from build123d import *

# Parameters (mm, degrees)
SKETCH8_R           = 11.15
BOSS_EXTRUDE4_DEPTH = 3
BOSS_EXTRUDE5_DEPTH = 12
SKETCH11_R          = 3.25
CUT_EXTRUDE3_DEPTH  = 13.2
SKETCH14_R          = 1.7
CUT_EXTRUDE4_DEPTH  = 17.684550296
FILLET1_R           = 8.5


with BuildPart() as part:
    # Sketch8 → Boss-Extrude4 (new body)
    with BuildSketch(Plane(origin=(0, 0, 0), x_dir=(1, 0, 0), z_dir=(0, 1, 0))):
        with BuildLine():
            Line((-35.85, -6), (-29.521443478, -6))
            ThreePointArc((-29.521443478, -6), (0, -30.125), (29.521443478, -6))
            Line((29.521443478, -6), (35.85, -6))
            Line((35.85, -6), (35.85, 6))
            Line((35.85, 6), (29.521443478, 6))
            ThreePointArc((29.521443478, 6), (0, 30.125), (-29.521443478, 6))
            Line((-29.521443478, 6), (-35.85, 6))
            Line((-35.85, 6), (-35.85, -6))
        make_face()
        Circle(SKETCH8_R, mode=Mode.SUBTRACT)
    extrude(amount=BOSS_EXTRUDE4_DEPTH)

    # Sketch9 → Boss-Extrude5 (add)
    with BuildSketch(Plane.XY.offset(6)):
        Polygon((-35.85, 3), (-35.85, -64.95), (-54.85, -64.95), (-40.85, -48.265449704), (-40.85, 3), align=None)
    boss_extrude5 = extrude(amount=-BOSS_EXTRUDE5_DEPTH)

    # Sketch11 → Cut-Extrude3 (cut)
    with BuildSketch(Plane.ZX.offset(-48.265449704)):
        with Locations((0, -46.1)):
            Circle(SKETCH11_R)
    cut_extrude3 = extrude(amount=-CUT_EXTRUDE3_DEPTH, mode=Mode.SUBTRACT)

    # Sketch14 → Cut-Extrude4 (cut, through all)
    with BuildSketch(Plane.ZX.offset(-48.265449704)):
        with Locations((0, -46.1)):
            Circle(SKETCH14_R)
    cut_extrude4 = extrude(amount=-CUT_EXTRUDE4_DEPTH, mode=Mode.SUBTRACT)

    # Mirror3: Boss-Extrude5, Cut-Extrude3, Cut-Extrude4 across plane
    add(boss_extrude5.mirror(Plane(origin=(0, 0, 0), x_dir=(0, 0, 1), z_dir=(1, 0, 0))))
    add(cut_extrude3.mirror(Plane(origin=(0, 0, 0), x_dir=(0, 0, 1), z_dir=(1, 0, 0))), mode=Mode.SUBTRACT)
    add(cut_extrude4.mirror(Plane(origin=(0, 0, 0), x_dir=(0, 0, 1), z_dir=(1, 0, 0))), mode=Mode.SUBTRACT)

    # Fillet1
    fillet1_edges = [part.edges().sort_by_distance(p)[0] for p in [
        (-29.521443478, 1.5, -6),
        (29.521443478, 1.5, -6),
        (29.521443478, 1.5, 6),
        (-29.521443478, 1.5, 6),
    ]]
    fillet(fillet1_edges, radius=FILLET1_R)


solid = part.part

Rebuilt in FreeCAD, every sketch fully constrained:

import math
import FreeCAD as App
import Part
import Sketcher

V = App.Vector
Q = App.Units.Quantity


def edges_at(feature, points):
    """Names of the edges that pass closest to the given points."""
    edges = feature.Shape.Edges
    near = lambda p: min(range(len(edges)), key=lambda i: edges[i].distToShape(Part.Vertex(*p))[0])
    return sorted({f"Edge{near(p) + 1}" for p in points})


def add_polygon(sketch, points):
    """Adds a closed chain of lines whose ends are joined by coincident constraints."""
    first, n = sketch.GeometryCount, len(points)
    for a, b in zip(points, points[1:] + points[:1]):
        sketch.addGeometry(Part.LineSegment(App.Vector(*a, 0), App.Vector(*b, 0)), False)
    for i in range(n):
        sketch.addConstraint(Sketcher.Constraint("Coincident", first + i, 2, first + (i + 1) % n, 1))

doc = App.newDocument("Part")
params = doc.addObject("Spreadsheet::Sheet", "Params")
for row, (alias, value) in enumerate([
    ("sketch1_diameter", "22.3 mm"),
    ("sketch1_height", "12 mm"),
    ("pad1_length", "3 mm"),
    ("sketch2_width", "5 mm"),
    ("sketch2_width2", "19 mm"),
    ("sketch2_height", "67.95 mm"),
    ("pad2_length", "12 mm"),
    ("sketch3_diameter", "6.5 mm"),
    ("pocket1_length", "13.2 mm"),
    ("sketch4_diameter", "3.4 mm"),
    ("fillet_radius", "8.5 mm"),
], start=1):
    params.set(f"A{row}", alias)
    params.set(f"B{row}", "=" + value)
    params.setAlias(f"B{row}", alias)

body = doc.addObject("PartDesign::Body", "Body")

sketch1 = body.newObject("Sketcher::SketchObject", "Sketch")
sketch1.AttachmentSupport = (doc.getObject("XZ_Plane"), [""])
sketch1.MapMode = "FlatFace"
sketch1.addGeometry(Part.LineSegment(V(-36, 6, 0), V(-30, 6, 0)), False)
sketch1.addGeometry(Part.ArcOfCircle(Part.Circle(V(0, 0, 0), V(0, 0, 1), 30), math.radians(11), math.radians(169)), False)
sketch1.addGeometry(Part.LineSegment(V(30, 6, 0), V(36, 6, 0)), False)
sketch1.addGeometry(Part.LineSegment(V(36, 6, 0), V(36, -6, 0)), False)
sketch1.addGeometry(Part.LineSegment(V(36, -6, 0), V(30, -6, 0)), False)
sketch1.addGeometry(Part.ArcOfCircle(Part.Circle(V(0, 0, 0), V(0, 0, 1), 30), math.radians(-169), math.radians(-11)), False)
sketch1.addGeometry(Part.LineSegment(V(-30, -6, 0), V(-36, -6, 0)), False)
sketch1.addGeometry(Part.LineSegment(V(-36, -6, 0), V(-36, 6, 0)), False)
sketch1.addGeometry(Part.Circle(V(0, 0, 0), V(0, 0, 1), 11), False)
sketch1.addConstraint(Sketcher.Constraint("Coincident", 0, 2, 1, 2))
sketch1.addConstraint(Sketcher.Constraint("Coincident", 1, 1, 2, 1))
sketch1.addConstraint(Sketcher.Constraint("Coincident", 2, 2, 3, 1))
sketch1.addConstraint(Sketcher.Constraint("Coincident", 3, 2, 4, 1))
sketch1.addConstraint(Sketcher.Constraint("Coincident", 4, 2, 5, 2))
sketch1.addConstraint(Sketcher.Constraint("Coincident", 5, 1, 6, 1))
sketch1.addConstraint(Sketcher.Constraint("Coincident", 6, 2, 7, 1))
sketch1.addConstraint(Sketcher.Constraint("Coincident", 7, 2, 0, 1))
sketch1.addConstraint(Sketcher.Constraint("Horizontal", 0))
sketch1.addConstraint(Sketcher.Constraint("Horizontal", 2))
sketch1.addConstraint(Sketcher.Constraint("Vertical", 3))
sketch1.addConstraint(Sketcher.Constraint("Horizontal", 4))
sketch1.addConstraint(Sketcher.Constraint("Horizontal", 6))
sketch1.addConstraint(Sketcher.Constraint("Vertical", 7))
sketch1.addConstraint(Sketcher.Constraint("Coincident", 1, 3, -1, 1))
sketch1.addConstraint(Sketcher.Constraint("Coincident", 5, 3, -1, 1))
sketch1.addConstraint(Sketcher.Constraint("Coincident", 8, 3, -1, 1))
sketch1.addConstraint(Sketcher.Constraint("Equal", 1, 5))
sketch1.addConstraint(Sketcher.Constraint("Symmetric", 2, 2, 6, 2, -1, 1))
sketch1.addConstraint(Sketcher.Constraint("Horizontal", 0, 2, 1, 1))
sketch1.addConstraint(Sketcher.Constraint("Horizontal", 4, 2, 5, 1))
sketch1.addConstraint(Sketcher.Constraint("Diameter", 8, Q("22.3 mm")))
sketch1.addConstraint(Sketcher.Constraint("DistanceY", 3, 2, 3, 1, Q("12 mm")))
sketch1.addConstraint(Sketcher.Constraint("Radius", 1, Q("30.125 mm")))
sketch1.addConstraint(Sketcher.Constraint("DistanceX", -1, 1, 2, 2, Q("35.85 mm")))
sketch1.setExpression("Constraints[21]", "Params.sketch1_diameter")
sketch1.setExpression("Constraints[22]", "Params.sketch1_height")
pad1 = body.newObject("PartDesign::Pad", "Pad")
pad1.Profile = sketch1
pad1.setExpression("Length", "Params.pad1_length")
pad1.Reversed = True

sketch2 = body.newObject("Sketcher::SketchObject", "Sketch001")
sketch2.AttachmentSupport = (doc.getObject("XY_Plane"), [""])
sketch2.MapMode = "FlatFace"
sketch2.AttachmentOffset = App.Placement(V(0, 0, 6), App.Rotation())
add_polygon(sketch2, [(-36, -65), (-36, 3), (-41, 3), (-41, -48), (-55, -65)])
sketch2.addConstraint(Sketcher.Constraint("Vertical", 0))
sketch2.addConstraint(Sketcher.Constraint("Horizontal", 1))
sketch2.addConstraint(Sketcher.Constraint("Vertical", 2))
sketch2.addConstraint(Sketcher.Constraint("Horizontal", 4))
sketch2.addConstraint(Sketcher.Constraint("DistanceX", 1, 2, 1, 1, Q("5 mm")))
sketch2.addConstraint(Sketcher.Constraint("DistanceX", 4, 1, 4, 2, Q("19 mm")))
sketch2.addConstraint(Sketcher.Constraint("Angle", 3, Q("-130 deg")))
sketch2.addConstraint(Sketcher.Constraint("DistanceY", -1, 1, 0, 2, Q("3 mm")))
sketch2.addConstraint(Sketcher.Constraint("DistanceY", 0, 1, 0, 2, Q("67.95 mm")))
sketch2.addConstraint(Sketcher.Constraint("DistanceX", 0, 2, -1, 1, Q("35.85 mm")))
sketch2.setExpression("Constraints[9]", "Params.sketch2_width")
sketch2.setExpression("Constraints[10]", "Params.sketch2_width2")
sketch2.setExpression("Constraints[13]", "Params.sketch2_height")
pad2 = body.newObject("PartDesign::Pad", "Pad001")
pad2.Profile = sketch2
pad2.setExpression("Length", "Params.pad2_length")
pad2.Reversed = True

sketch3 = body.newObject("Sketcher::SketchObject", "Sketch002")
sketch3.AttachmentSupport = (doc.getObject("XZ_Plane"), [""])
sketch3.MapMode = "FlatFace"
sketch3.AttachmentOffset = App.Placement(V(0, 0, 48.26545), App.Rotation())
sketch3.addGeometry(Part.Circle(V(-46.1, 0, 0), V(0, 0, 1), 3.2), False)
sketch3.addConstraint(Sketcher.Constraint("PointOnObject", 0, 3, -1))
sketch3.addConstraint(Sketcher.Constraint("Diameter", 0, Q("6.5 mm")))
sketch3.addConstraint(Sketcher.Constraint("DistanceX", 0, 3, -1, 1, Q("46.1 mm")))
sketch3.setExpression("Constraints[1]", "Params.sketch3_diameter")
pocket1 = body.newObject("PartDesign::Pocket", "Pocket")
pocket1.Profile = sketch3
pocket1.setExpression("Length", "Params.pocket1_length")
pocket1.Reversed = True

sketch4 = body.newObject("Sketcher::SketchObject", "Sketch003")
sketch4.AttachmentSupport = (doc.getObject("XZ_Plane"), [""])
sketch4.MapMode = "FlatFace"
sketch4.AttachmentOffset = App.Placement(V(0, 0, 48.26545), App.Rotation())
sketch4.addGeometry(Part.Circle(V(-46.1, 0, 0), V(0, 0, 1), 1.7), False)
sketch4.addConstraint(Sketcher.Constraint("PointOnObject", 0, 3, -1))
sketch4.addConstraint(Sketcher.Constraint("Diameter", 0, Q("3.4 mm")))
sketch4.addConstraint(Sketcher.Constraint("DistanceX", 0, 3, -1, 1, Q("46.1 mm")))
sketch4.setExpression("Constraints[1]", "Params.sketch4_diameter")
pocket2 = body.newObject("PartDesign::Pocket", "Pocket001")
pocket2.Profile = sketch4
pocket2.Type = "ThroughAll"
pocket2.Reversed = True
doc.recompute()

mirrored = body.newObject("PartDesign::Mirrored", "Mirrored")
mirrored.Originals = [pad2, pocket1, pocket2]
mirrored.MirrorPlane = (doc.getObject("YZ_Plane"), [""])
body.Tip = mirrored
doc.recompute()

fillet = body.newObject("PartDesign::Fillet", "Fillet")
fillet.Base = (mirrored, edges_at(mirrored, [
    (-29.521, 1.5, -6),
    (29.521, 1.5, -6),
    (29.521, 1.5, 6),
    (-29.521, 1.5, 6),
]))
fillet.setExpression("Radius", "Params.fillet_radius")

doc.recompute()
